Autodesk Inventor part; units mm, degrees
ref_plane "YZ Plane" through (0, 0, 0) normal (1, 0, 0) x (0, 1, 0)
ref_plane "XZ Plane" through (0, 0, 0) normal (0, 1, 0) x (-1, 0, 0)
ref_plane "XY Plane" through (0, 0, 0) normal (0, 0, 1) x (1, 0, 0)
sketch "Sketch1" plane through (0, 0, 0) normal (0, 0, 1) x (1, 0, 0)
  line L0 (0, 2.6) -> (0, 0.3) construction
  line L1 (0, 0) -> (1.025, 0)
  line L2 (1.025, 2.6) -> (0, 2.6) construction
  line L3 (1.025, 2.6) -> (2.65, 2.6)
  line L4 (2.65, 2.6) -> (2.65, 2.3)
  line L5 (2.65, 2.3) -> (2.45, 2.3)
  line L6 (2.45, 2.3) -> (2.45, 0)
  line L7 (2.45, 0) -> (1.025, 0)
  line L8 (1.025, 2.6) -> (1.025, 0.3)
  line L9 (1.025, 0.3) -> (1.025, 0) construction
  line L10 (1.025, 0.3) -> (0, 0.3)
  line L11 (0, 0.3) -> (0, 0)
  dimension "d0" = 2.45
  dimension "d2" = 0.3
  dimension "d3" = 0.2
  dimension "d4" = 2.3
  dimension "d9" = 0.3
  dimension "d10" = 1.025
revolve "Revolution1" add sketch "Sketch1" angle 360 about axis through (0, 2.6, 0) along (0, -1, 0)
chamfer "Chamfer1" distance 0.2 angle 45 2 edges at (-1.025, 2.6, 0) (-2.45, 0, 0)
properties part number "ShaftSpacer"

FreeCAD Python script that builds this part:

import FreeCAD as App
import Part
import Sketcher

V = App.Vector


def edges_at(feature, points):
    """Names of the edges that pass closest to the given points."""
    edges = feature.Shape.Edges
    near = lambda p: min(range(len(edges)), key=lambda i: edges[i].distToShape(Part.Vertex(*p))[0])
    return sorted({f"Edge{near(p) + 1}" for p in points})


def add_polygon(sketch, points):
    """Adds a closed chain of lines whose ends are joined by coincident constraints."""
    first, n = sketch.GeometryCount, len(points)
    for a, b in zip(points, points[1:] + points[:1]):
        sketch.addGeometry(Part.LineSegment(App.Vector(*a, 0), App.Vector(*b, 0)), False)
    for i in range(n):
        sketch.addConstraint(Sketcher.Constraint("Coincident", first + i, 2, first + (i + 1) % n, 1))

doc = App.newDocument("Part")
body = doc.addObject("PartDesign::Body", "Body")

sketch1 = body.newObject("Sketcher::SketchObject", "Sketch")
sketch1.AttachmentSupport = (doc.getObject("XY_Plane"), [""])
sketch1.MapMode = "FlatFace"
add_polygon(sketch1, [(0, 0.3), (0, 0), (2.45, 0), (2.45, 2.3), (2.65, 2.3), (2.65, 2.6), (1.02, 2.6), (1.02, 0.3)])
sketch1.addConstraint([
    Sketcher.Constraint("Vertical", 0),
    Sketcher.Constraint("Horizontal", 1),
    Sketcher.Constraint("Vertical", 2),
    Sketcher.Constraint("Horizontal", 3),
    Sketcher.Constraint("Vertical", 4),
    Sketcher.Constraint("Horizontal", 5),
    Sketcher.Constraint("Vertical", 6),
    Sketcher.Constraint("Horizontal", 7),
    Sketcher.Constraint("Coincident", 0, 2, -1, 1),
    Sketcher.Constraint("Equal", 0, 4),
    Sketcher.Constraint("DistanceX", 3, 1, 3, 2, 0.2),
    Sketcher.Constraint("DistanceY", 0, 2, 0, 1, 0.3),
    Sketcher.Constraint("DistanceY", 2, 1, 2, 2, 2.3),
    Sketcher.Constraint("DistanceX", 1, 1, 1, 2, 2.45),
    Sketcher.Constraint("DistanceX", 7, 2, 7, 1, 1.025),
])
revolution = body.newObject("PartDesign::Revolution", "Revolution")
revolution.Profile = sketch1
revolution.ReferenceAxis = (sketch1, ["V_Axis"])
revolution.Angle = 360
doc.recompute()

chamfer = body.newObject("PartDesign::Chamfer", "Chamfer")
chamfer.Base = (revolution, edges_at(revolution, [(-1.025, 2.6, 0), (-2.45, 0, 0)]))
chamfer.Size = 0.2

doc.recompute()
